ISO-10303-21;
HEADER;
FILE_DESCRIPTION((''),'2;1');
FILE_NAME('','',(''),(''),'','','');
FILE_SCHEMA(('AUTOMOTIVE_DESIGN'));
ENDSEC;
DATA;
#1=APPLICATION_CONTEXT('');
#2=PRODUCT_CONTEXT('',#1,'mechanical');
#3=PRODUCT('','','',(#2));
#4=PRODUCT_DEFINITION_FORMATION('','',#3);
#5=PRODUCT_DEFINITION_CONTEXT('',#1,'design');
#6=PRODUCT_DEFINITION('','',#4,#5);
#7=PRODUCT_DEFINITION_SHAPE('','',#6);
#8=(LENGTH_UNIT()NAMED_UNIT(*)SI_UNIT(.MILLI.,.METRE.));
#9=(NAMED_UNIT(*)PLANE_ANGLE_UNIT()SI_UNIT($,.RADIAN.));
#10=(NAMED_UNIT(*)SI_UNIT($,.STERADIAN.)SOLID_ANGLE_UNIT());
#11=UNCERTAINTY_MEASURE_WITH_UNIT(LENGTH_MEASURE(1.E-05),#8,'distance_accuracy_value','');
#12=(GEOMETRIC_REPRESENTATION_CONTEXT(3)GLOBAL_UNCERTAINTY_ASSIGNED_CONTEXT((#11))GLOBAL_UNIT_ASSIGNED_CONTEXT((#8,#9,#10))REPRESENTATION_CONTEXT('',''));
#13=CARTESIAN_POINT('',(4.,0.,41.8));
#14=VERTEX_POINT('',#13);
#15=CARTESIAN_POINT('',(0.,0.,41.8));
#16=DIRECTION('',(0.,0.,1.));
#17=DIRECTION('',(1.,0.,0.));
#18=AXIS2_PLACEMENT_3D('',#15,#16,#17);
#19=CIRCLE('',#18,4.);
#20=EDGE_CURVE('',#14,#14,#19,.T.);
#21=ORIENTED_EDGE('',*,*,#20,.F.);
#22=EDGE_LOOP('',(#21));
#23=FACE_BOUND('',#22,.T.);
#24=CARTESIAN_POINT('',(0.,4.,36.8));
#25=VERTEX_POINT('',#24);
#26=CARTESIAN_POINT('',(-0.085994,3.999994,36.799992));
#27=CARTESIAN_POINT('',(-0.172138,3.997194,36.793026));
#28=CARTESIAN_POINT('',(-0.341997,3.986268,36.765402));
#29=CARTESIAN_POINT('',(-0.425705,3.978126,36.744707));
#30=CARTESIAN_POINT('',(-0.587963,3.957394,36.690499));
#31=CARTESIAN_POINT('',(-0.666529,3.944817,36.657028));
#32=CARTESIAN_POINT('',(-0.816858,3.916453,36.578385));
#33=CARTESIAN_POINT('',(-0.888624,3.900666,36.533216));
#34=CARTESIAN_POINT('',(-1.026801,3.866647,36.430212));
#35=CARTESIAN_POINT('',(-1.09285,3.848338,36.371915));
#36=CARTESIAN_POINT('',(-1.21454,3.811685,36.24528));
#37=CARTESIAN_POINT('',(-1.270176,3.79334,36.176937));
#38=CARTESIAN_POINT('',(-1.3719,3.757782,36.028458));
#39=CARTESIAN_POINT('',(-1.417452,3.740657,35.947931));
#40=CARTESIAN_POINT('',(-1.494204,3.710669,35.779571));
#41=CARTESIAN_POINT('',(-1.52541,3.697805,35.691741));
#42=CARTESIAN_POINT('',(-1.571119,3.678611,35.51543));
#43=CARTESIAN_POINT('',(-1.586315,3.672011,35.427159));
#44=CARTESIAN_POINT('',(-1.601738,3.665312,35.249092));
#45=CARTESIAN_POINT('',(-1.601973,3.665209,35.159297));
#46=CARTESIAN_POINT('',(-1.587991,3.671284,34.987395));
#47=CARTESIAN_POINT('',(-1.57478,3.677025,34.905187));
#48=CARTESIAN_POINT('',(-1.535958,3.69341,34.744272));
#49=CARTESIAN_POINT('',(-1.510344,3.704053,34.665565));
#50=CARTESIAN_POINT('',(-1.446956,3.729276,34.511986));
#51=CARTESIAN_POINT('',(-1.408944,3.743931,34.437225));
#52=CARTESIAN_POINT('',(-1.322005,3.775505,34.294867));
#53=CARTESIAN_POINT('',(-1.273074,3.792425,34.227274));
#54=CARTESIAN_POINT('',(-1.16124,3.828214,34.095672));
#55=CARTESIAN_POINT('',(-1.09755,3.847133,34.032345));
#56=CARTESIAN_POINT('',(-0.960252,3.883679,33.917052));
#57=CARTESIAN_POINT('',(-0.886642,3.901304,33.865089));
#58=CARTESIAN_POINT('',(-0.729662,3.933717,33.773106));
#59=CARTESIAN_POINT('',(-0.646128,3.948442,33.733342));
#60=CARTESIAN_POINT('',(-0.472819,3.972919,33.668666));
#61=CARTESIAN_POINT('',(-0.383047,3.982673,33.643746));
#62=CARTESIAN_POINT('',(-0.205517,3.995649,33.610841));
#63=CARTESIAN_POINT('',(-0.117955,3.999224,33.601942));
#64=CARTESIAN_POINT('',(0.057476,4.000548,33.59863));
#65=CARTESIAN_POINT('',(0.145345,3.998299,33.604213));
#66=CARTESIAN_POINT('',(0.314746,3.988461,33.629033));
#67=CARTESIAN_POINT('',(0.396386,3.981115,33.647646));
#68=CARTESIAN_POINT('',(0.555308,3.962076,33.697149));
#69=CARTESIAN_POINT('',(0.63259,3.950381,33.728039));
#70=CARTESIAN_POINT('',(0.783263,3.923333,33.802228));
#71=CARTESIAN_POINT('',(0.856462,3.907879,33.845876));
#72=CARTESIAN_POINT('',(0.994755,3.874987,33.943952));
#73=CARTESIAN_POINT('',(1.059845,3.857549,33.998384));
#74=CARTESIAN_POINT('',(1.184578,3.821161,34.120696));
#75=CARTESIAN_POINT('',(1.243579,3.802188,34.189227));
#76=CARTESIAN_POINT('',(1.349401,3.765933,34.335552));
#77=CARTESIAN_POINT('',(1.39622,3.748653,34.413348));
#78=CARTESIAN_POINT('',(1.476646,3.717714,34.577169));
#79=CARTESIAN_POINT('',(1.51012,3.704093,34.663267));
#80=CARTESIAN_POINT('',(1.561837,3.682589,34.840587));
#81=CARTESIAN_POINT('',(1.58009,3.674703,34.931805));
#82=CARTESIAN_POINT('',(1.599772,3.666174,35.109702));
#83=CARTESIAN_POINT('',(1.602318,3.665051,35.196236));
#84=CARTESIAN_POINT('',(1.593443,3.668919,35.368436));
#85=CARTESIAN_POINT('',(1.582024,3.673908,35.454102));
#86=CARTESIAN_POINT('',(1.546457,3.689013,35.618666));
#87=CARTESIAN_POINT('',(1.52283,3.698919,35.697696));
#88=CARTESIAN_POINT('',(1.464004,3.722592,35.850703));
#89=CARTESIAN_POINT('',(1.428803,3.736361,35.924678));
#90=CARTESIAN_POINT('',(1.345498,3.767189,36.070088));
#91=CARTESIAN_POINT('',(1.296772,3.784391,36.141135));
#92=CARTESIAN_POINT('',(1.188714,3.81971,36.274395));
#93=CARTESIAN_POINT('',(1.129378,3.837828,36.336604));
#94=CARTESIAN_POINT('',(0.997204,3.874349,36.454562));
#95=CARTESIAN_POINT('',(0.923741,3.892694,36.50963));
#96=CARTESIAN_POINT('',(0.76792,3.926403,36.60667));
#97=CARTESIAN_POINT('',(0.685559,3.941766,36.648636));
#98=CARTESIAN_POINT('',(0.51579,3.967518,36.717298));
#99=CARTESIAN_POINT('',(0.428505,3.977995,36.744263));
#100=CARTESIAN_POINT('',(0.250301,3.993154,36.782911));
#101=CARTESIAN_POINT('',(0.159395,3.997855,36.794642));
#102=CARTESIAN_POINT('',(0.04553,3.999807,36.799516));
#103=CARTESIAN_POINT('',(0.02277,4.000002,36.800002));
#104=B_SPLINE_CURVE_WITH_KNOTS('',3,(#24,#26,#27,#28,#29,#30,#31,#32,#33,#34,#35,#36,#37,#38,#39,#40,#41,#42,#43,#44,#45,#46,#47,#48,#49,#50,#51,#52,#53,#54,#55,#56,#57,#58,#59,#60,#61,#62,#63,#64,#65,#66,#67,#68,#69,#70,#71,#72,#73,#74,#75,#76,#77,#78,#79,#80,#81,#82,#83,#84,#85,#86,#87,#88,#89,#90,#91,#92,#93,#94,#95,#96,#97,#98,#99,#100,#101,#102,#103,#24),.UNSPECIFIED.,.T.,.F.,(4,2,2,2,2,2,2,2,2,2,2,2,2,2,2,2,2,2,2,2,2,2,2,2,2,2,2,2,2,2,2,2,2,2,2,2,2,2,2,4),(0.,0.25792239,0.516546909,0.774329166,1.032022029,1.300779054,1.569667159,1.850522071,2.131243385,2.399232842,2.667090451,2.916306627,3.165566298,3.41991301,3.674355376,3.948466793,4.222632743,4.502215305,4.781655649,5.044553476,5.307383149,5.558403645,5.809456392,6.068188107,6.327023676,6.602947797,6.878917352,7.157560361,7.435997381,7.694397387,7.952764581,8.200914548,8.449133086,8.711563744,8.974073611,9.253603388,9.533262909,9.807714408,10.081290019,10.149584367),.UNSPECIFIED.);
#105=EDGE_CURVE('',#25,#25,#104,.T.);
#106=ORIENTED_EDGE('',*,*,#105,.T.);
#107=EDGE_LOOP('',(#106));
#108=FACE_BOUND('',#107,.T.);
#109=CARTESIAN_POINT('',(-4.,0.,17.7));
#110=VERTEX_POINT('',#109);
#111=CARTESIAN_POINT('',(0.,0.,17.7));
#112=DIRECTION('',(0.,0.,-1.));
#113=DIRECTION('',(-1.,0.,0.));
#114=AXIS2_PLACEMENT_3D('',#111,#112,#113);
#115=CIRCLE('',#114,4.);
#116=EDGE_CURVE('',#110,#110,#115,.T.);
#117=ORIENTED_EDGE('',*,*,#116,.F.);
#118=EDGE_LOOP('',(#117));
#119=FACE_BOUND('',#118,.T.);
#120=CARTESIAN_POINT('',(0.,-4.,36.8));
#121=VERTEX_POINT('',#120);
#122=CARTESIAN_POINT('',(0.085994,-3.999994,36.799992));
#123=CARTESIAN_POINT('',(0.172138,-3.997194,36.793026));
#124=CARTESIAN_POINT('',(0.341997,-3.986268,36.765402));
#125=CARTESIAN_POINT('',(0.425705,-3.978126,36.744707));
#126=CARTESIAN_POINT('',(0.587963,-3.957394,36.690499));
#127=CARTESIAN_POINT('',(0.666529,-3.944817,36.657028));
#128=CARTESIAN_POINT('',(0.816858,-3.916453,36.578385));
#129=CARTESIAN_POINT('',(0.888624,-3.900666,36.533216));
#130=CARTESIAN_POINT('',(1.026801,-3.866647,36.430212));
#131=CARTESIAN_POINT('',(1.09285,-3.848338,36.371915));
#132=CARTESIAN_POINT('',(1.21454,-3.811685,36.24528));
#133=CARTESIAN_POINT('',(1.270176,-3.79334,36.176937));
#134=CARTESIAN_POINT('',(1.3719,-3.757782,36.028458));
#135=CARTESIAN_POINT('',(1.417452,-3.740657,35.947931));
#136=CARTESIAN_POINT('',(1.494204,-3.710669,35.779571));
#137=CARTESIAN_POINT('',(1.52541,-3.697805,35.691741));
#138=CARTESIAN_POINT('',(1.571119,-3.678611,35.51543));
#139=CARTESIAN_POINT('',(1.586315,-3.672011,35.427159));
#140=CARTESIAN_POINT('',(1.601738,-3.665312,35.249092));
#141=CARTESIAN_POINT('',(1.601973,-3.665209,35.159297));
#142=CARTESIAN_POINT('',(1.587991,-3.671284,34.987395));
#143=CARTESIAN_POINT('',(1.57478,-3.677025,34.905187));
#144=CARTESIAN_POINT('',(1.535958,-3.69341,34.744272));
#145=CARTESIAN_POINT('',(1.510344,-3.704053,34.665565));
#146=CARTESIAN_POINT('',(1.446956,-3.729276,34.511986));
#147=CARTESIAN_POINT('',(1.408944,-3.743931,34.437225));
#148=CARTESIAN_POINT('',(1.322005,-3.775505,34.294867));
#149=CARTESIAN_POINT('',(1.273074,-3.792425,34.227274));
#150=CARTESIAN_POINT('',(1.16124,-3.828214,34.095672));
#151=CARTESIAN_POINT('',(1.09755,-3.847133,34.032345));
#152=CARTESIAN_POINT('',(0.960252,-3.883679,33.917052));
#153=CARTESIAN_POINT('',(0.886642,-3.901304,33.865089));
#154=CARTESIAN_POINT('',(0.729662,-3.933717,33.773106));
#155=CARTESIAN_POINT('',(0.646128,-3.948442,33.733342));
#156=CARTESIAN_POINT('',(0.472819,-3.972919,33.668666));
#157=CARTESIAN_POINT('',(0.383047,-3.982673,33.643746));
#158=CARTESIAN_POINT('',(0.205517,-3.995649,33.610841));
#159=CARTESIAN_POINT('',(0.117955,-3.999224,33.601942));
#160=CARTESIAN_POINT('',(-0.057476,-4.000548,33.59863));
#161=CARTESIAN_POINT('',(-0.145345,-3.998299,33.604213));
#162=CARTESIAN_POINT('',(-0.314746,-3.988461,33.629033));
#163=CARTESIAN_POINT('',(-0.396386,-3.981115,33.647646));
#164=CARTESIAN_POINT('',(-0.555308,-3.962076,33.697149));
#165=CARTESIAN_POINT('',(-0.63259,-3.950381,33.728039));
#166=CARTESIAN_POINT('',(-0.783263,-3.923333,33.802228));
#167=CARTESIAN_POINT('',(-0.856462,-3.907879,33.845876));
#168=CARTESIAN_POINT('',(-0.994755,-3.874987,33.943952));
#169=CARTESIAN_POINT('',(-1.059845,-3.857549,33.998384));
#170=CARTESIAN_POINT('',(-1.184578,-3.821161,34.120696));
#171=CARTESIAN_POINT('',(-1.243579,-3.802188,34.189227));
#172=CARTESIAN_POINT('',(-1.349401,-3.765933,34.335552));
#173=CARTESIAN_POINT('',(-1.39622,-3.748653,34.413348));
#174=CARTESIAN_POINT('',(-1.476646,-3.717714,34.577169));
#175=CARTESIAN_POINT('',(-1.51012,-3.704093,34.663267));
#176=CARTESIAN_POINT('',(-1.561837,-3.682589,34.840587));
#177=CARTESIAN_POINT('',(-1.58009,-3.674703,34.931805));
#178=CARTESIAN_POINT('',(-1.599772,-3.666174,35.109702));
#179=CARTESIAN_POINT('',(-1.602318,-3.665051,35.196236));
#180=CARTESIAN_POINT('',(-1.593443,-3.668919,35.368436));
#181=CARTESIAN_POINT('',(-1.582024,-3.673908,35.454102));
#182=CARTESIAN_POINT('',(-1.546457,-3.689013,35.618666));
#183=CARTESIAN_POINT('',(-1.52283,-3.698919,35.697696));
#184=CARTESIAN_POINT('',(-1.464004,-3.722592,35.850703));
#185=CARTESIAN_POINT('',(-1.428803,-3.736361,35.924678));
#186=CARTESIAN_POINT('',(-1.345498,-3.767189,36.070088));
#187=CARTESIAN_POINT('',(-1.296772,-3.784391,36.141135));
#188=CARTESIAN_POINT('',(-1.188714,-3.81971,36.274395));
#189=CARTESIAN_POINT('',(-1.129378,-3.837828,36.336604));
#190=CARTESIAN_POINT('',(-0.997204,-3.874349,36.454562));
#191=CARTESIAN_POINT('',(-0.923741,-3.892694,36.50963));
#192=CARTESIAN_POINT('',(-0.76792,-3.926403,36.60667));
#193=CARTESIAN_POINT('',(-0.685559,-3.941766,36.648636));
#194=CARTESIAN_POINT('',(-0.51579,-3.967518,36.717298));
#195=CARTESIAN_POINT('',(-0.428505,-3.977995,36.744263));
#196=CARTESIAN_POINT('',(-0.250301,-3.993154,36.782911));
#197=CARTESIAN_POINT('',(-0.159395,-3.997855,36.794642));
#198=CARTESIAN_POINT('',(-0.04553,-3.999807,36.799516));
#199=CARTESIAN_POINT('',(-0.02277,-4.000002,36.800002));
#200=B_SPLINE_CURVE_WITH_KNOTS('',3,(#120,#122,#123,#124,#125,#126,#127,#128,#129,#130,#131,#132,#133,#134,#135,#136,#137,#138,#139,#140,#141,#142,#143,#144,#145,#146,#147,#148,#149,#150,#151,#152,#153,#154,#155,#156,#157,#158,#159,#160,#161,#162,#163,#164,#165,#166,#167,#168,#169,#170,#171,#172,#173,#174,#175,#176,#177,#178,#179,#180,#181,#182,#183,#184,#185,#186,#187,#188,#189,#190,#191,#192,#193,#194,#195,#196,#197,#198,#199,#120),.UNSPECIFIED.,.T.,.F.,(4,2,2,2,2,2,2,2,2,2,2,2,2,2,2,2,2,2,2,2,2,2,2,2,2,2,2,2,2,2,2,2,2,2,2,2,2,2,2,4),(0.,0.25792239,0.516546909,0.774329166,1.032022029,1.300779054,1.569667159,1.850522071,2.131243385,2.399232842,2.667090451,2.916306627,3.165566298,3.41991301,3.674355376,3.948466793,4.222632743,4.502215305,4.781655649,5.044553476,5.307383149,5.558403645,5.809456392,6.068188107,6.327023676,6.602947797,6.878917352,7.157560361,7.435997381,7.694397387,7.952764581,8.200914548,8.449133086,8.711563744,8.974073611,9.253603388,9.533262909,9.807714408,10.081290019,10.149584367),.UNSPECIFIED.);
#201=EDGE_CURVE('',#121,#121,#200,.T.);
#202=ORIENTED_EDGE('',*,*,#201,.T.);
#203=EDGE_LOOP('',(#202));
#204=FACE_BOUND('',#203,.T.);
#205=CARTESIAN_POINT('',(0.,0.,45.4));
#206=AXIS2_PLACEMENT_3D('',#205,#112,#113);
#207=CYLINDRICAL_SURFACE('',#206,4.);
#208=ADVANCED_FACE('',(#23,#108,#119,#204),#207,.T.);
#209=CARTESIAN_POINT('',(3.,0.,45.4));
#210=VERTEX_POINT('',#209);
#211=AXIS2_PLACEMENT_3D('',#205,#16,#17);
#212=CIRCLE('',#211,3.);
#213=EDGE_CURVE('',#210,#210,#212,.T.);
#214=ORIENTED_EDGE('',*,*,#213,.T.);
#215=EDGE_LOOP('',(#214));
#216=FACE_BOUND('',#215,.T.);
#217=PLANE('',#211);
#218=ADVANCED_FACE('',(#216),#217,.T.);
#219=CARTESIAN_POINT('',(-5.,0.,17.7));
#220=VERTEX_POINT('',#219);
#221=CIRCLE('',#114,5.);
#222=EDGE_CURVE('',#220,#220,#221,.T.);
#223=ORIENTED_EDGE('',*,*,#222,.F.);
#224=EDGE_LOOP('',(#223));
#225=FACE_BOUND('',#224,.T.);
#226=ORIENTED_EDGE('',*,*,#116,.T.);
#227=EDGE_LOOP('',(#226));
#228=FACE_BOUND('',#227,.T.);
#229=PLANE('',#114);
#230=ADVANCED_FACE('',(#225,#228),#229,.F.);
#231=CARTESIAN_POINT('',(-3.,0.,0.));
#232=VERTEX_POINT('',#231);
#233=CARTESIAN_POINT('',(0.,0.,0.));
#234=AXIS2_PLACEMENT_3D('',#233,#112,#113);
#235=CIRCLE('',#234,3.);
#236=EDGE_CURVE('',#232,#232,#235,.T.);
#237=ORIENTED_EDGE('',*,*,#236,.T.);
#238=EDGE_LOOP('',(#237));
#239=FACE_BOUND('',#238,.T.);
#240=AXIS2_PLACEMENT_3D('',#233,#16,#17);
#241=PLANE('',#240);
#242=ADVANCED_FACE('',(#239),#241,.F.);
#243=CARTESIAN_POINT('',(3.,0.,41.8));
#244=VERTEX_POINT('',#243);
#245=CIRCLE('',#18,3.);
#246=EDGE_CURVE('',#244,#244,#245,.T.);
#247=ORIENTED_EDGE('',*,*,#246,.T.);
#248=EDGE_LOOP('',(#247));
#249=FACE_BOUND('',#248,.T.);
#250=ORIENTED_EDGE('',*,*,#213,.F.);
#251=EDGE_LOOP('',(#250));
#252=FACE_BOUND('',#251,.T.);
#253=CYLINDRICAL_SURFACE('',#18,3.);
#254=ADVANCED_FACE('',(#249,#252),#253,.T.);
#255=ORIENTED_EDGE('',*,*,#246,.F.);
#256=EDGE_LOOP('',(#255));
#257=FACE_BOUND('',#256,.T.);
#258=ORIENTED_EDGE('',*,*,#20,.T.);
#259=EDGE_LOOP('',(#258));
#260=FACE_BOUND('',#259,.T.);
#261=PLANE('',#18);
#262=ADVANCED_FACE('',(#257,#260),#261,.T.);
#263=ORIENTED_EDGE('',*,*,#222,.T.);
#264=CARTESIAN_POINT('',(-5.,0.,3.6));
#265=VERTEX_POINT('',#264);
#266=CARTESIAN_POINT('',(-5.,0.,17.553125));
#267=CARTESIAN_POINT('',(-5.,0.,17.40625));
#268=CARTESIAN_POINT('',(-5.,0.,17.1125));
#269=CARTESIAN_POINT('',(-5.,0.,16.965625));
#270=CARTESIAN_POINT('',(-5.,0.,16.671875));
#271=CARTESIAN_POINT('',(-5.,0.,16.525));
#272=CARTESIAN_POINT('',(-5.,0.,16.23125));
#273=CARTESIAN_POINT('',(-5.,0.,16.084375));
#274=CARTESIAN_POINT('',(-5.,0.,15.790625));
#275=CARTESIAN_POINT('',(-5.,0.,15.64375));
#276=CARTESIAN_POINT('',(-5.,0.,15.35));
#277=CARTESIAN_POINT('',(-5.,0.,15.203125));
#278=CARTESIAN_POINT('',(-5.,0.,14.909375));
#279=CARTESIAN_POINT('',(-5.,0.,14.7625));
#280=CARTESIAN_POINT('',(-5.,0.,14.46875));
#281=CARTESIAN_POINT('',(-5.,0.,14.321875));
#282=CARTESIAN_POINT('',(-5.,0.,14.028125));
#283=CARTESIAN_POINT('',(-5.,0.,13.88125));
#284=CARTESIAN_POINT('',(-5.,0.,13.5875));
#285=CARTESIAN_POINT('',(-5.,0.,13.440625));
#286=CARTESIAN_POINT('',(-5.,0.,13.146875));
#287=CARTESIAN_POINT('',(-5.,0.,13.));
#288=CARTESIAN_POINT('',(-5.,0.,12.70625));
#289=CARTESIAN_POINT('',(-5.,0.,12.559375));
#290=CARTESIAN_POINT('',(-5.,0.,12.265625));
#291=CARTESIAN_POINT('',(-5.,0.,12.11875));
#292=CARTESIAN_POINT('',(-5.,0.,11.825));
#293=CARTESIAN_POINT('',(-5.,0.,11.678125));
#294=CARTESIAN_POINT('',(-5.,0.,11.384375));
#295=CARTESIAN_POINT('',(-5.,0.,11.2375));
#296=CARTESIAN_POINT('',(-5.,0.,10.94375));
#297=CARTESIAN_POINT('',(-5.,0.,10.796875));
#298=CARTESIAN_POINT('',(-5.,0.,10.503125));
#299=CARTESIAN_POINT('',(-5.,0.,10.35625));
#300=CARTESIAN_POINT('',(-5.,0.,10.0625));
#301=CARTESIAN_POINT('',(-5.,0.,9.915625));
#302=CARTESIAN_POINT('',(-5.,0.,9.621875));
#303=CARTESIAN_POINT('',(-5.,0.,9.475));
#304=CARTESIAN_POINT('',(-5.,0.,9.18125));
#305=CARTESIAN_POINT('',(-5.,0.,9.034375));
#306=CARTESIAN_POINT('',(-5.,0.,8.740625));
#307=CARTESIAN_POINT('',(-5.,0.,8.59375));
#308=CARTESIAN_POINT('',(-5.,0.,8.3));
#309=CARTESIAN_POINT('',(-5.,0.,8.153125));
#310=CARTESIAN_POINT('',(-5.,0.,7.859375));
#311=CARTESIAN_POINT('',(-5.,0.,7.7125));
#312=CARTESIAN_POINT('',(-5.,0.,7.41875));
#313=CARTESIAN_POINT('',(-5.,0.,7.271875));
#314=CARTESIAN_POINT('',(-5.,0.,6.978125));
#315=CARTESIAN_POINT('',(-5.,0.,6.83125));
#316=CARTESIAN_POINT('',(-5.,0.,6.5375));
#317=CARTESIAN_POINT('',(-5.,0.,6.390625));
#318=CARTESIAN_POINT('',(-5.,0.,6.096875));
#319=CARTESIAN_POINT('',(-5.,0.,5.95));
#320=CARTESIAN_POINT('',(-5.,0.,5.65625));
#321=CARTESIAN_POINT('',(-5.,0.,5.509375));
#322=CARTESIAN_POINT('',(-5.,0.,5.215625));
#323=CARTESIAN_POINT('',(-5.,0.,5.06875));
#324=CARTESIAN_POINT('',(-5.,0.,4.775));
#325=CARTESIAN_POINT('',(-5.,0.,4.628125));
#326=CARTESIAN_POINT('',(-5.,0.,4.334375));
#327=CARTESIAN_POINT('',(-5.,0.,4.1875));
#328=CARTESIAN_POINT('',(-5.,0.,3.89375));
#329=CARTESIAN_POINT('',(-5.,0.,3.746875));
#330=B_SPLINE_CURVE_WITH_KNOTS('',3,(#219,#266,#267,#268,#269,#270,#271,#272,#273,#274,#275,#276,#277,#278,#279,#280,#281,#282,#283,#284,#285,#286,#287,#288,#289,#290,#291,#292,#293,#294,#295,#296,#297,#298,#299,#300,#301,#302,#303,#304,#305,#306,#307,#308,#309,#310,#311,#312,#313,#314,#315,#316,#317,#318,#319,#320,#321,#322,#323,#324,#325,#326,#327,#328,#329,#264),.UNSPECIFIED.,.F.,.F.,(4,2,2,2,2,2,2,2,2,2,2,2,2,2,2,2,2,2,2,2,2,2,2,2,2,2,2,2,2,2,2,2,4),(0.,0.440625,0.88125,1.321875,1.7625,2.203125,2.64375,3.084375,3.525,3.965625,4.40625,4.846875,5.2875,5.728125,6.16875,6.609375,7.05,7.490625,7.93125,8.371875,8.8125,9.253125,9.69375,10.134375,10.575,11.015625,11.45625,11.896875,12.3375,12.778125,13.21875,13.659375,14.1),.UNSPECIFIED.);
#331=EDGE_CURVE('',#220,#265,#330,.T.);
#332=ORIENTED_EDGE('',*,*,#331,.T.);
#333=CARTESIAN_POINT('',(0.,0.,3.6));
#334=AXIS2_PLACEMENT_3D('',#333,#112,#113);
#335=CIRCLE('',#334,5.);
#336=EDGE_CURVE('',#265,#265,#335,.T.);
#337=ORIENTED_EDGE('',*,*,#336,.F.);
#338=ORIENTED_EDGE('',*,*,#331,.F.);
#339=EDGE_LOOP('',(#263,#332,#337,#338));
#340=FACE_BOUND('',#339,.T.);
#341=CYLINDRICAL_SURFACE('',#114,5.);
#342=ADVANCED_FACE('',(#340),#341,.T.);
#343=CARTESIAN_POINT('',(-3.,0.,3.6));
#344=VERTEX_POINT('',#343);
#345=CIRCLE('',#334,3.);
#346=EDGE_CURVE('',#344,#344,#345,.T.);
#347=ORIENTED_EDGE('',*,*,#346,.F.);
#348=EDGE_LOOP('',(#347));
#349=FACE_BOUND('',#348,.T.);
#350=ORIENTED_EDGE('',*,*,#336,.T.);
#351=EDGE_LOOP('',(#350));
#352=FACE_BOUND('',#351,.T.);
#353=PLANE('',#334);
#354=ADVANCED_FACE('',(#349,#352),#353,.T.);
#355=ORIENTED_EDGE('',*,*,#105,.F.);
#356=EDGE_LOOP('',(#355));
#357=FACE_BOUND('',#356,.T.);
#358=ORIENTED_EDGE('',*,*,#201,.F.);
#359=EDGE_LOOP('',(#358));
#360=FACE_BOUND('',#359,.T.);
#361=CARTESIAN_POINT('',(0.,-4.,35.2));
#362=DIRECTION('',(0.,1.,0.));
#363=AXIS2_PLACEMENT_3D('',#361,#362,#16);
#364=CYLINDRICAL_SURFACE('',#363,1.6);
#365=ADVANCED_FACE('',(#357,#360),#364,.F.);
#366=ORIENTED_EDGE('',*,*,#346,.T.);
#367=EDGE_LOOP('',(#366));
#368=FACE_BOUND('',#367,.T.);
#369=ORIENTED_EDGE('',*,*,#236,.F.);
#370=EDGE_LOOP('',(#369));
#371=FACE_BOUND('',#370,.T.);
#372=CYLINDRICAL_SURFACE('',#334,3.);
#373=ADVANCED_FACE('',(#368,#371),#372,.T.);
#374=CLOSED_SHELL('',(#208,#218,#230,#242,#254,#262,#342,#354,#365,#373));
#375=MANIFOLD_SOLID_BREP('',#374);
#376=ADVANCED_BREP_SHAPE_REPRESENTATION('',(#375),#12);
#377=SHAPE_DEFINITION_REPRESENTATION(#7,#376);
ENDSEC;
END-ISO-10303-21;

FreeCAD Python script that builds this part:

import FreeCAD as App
import Part
import Sketcher
Q = App.Units.Quantity

doc = App.newDocument("Part")
body = doc.addObject("PartDesign::Body", "Body")

sketch1 = body.newObject("Sketcher::SketchObject", "Sketch")
sketch1.AttachmentSupport = (doc.getObject("XY_Plane"), [""])
sketch1.MapMode = "FlatFace"
sketch1.addGeometry(Part.Circle(App.Vector(0, 0, 0), App.Vector(0, 0, 1), 4), False)
sketch1.addConstraint([
    Sketcher.Constraint("Coincident", 0, 3, -1, 1),
    Sketcher.Constraint("Diameter", 0, Q("8 mm")),
])
pad1 = body.newObject("PartDesign::Pad", "Pad")
pad1.Profile = sketch1
pad1.Length = 45.4

sketch2 = body.newObject("Sketcher::SketchObject", "Sketch001")
sketch2.AttachmentSupport = (doc.getObject("XY_Plane"), [""])
sketch2.MapMode = "FlatFace"
sketch2.addGeometry([
    Part.Circle(App.Vector(0, 0, 0), App.Vector(0, 0, 1), 4),
    Part.Circle(App.Vector(0, 0, 0), App.Vector(0, 0, 1), 3),
], False)
sketch2.addConstraint([
    Sketcher.Constraint("Coincident", 0, 3, -1, 1),
    Sketcher.Constraint("Coincident", 1, 3, -1, 1),
    Sketcher.Constraint("Diameter", 0, Q("8 mm")),
    Sketcher.Constraint("Diameter", 1, Q("6 mm")),
])
pocket1 = body.newObject("PartDesign::Pocket", "Pocket")
pocket1.Profile = sketch2
pocket1.Length = 3.6
pocket1.Reversed = True

sketch3 = body.newObject("Sketcher::SketchObject", "Sketch002")
sketch3.AttachmentSupport = (doc.getObject("XY_Plane"), [""])
sketch3.MapMode = "FlatFace"
sketch3.AttachmentOffset = App.Placement(App.Vector(0, 0, 41.8), App.Rotation())
sketch3.addGeometry([
    Part.Circle(App.Vector(0, 0, 0), App.Vector(0, 0, 1), 4),
    Part.Circle(App.Vector(0, 0, 0), App.Vector(0, 0, 1), 3),
], False)
sketch3.addConstraint([
    Sketcher.Constraint("Coincident", 0, 3, -1, 1),
    Sketcher.Constraint("Coincident", 1, 3, -1, 1),
    Sketcher.Constraint("Diameter", 0, Q("8 mm")),
    Sketcher.Constraint("Diameter", 1, Q("6 mm")),
])
pocket2 = body.newObject("PartDesign::Pocket", "Pocket001")
pocket2.Profile = sketch3
pocket2.Length = 3.6
pocket2.Reversed = True

sketch4 = body.newObject("Sketcher::SketchObject", "Sketch003")
sketch4.AttachmentSupport = (doc.getObject("XZ_Plane"), [""])
sketch4.MapMode = "FlatFace"
sketch4.addGeometry(Part.Circle(App.Vector(0, 35.2, 0), App.Vector(0, 0, 1), 1.6), False)
sketch4.addConstraint([
    Sketcher.Constraint("PointOnObject", 0, 3, -2),
    Sketcher.Constraint("Diameter", 0, Q("3.2 mm")),
    Sketcher.Constraint("DistanceY", -1, 1, 0, 3, Q("35.2 mm")),
])
pocket3 = body.newObject("PartDesign::Pocket", "Pocket002")
pocket3.Profile = sketch4
pocket3.Type = "ThroughAll"
pocket3.Midplane = True

sketch5 = body.newObject("Sketcher::SketchObject", "Sketch004")
sketch5.AttachmentSupport = (doc.getObject("XY_Plane"), [""])
sketch5.MapMode = "FlatFace"
sketch5.AttachmentOffset = App.Placement(App.Vector(0, 0, 3.6), App.Rotation())
sketch5.addGeometry([
    Part.Circle(App.Vector(0, 0, 0), App.Vector(0, 0, 1), 5),
    Part.Circle(App.Vector(0, 0, 0), App.Vector(0, 0, 1), 4),
], False)
sketch5.addConstraint([
    Sketcher.Constraint("Coincident", 0, 3, -1, 1),
    Sketcher.Constraint("Coincident", 1, 3, -1, 1),
    Sketcher.Constraint("Diameter", 0, Q("10 mm")),
    Sketcher.Constraint("Diameter", 1, Q("8 mm")),
])
pad2 = body.newObject("PartDesign::Pad", "Pad001")
pad2.Profile = sketch5
pad2.Length = 14.1

doc.recompute()
